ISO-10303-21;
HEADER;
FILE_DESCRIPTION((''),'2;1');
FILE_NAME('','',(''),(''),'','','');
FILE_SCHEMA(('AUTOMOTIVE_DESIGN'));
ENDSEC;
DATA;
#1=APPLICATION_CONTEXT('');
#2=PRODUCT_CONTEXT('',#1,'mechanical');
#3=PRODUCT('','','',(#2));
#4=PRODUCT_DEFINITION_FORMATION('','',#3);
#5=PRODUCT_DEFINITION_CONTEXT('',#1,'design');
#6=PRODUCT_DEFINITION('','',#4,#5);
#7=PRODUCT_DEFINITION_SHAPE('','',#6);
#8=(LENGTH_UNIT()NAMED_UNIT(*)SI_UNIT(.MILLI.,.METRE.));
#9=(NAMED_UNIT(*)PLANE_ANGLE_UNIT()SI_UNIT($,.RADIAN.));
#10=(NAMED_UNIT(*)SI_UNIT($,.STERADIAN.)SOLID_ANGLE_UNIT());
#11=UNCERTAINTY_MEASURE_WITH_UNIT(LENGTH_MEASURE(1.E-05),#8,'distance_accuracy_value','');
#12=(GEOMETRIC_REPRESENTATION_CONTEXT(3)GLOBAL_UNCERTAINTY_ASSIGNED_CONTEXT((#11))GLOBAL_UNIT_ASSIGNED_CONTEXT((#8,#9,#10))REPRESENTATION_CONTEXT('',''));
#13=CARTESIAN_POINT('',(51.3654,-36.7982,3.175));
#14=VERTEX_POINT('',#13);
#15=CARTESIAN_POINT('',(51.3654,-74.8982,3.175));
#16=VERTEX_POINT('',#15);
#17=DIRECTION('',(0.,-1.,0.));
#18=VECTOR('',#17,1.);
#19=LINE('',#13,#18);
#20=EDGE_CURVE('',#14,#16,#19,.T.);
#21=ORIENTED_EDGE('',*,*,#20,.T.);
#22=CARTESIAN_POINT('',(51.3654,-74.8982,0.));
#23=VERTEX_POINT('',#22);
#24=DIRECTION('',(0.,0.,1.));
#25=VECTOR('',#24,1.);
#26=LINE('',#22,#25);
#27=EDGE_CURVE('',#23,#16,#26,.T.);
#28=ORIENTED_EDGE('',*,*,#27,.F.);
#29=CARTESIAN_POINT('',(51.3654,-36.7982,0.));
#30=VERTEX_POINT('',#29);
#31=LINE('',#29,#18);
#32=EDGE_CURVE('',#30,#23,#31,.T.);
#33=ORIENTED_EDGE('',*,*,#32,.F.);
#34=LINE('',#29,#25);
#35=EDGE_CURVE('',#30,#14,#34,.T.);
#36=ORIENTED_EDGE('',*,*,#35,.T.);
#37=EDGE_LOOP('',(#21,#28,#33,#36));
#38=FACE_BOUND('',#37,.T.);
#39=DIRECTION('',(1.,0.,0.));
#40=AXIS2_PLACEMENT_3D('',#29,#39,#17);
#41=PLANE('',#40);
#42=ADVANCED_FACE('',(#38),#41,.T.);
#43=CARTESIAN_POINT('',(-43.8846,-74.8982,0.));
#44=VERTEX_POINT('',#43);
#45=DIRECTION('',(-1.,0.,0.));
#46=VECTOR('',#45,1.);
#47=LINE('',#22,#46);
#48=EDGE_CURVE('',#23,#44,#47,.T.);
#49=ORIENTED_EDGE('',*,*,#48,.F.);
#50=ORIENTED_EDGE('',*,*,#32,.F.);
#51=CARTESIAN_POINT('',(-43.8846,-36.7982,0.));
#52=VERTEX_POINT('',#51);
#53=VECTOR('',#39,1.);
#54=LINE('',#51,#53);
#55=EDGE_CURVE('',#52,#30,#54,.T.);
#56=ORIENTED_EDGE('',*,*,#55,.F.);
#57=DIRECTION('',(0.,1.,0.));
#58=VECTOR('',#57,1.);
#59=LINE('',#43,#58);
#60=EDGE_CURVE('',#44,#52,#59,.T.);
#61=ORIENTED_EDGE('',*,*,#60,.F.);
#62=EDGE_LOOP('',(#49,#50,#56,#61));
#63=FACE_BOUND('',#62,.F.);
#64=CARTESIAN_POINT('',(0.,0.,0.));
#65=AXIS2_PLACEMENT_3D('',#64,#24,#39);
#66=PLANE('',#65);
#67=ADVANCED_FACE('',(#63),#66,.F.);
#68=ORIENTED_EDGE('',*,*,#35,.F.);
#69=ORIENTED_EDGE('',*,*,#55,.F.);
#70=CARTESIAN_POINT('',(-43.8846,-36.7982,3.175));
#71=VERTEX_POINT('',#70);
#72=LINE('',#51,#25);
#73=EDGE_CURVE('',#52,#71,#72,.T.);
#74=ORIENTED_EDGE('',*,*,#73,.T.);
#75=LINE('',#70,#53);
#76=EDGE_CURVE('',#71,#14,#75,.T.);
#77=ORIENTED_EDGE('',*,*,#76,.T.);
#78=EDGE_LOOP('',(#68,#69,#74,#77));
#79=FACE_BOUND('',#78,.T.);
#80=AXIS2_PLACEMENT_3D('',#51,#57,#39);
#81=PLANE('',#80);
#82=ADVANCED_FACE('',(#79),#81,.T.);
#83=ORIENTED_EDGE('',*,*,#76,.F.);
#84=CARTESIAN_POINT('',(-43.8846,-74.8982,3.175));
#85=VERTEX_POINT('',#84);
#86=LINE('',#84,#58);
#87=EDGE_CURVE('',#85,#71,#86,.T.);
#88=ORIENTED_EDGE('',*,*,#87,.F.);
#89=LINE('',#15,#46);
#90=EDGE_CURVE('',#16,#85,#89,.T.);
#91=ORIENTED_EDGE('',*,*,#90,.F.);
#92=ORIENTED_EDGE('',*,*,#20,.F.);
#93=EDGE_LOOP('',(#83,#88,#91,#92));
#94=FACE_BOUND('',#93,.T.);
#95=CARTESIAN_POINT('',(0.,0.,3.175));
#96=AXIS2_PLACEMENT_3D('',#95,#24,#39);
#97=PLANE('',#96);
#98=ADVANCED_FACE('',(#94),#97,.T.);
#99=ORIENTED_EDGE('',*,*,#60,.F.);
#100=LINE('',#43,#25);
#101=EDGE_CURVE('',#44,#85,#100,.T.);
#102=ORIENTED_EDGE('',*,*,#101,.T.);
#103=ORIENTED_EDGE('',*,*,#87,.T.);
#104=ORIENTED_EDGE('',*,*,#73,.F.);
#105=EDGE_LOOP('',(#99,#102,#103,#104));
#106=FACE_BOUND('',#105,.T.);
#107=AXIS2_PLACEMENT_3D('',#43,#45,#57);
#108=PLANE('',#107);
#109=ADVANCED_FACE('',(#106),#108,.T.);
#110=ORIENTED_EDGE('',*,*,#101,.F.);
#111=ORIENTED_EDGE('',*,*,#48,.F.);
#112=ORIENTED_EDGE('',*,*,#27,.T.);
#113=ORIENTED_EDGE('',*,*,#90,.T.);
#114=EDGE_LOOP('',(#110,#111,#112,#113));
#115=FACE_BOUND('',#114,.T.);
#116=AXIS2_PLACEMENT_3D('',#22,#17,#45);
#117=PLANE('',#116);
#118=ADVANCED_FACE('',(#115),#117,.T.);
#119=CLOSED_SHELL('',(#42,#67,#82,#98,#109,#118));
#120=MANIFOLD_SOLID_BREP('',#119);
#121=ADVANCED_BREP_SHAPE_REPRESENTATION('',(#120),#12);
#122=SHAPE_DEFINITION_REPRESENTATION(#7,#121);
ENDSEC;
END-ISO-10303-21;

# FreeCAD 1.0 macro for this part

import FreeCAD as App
import Part
import Sketcher

V = App.Vector
Q = App.Units.Quantity


def add_polygon(sketch, points):
    """Adds a closed chain of lines whose ends are joined by coincident constraints."""
    first, n = sketch.GeometryCount, len(points)
    for a, b in zip(points, points[1:] + points[:1]):
        sketch.addGeometry(Part.LineSegment(App.Vector(*a, 0), App.Vector(*b, 0)), False)
    for i in range(n):
        sketch.addConstraint(Sketcher.Constraint("Coincident", first + i, 2, first + (i + 1) % n, 1))

doc = App.newDocument("Part")
body = doc.addObject("PartDesign::Body", "Body")

sketch1 = doc.addObject("Sketcher::SketchObject", "Sketch")
body.addObject(sketch1)
sketch1.AttachmentSupport = (doc.XY_Plane, [""])
sketch1.MapMode = "FlatFace"
add_polygon(sketch1, [(51.3654, -36.7982), (-43.8846, -36.7982), (-43.8846, -74.8982), (51.3654, -74.8982)])
sketch1.addConstraint(Sketcher.Constraint("Horizontal", 0))
sketch1.addConstraint(Sketcher.Constraint("Vertical", 1))
sketch1.addConstraint(Sketcher.Constraint("Horizontal", 2))
sketch1.addConstraint(Sketcher.Constraint("Vertical", 3))
sketch1.addConstraint(Sketcher.Constraint("DistanceY", 1, 2, 1, 1, Q("1.5 in")))
sketch1.addConstraint(Sketcher.Constraint("DistanceX", 0, 2, 0, 1, Q("3.75 in")))
sketch1.addConstraint(Sketcher.Constraint("DistanceX", 0, 2, -1, 1, 43.8846))
sketch1.addConstraint(Sketcher.Constraint("DistanceY", 0, 2, -1, 1, 36.7982))
pad1 = doc.addObject("PartDesign::Pad", "Pad")
body.addObject(pad1)
pad1.Profile = sketch1
pad1.Length = Q("0.125 in")

doc.recompute()
